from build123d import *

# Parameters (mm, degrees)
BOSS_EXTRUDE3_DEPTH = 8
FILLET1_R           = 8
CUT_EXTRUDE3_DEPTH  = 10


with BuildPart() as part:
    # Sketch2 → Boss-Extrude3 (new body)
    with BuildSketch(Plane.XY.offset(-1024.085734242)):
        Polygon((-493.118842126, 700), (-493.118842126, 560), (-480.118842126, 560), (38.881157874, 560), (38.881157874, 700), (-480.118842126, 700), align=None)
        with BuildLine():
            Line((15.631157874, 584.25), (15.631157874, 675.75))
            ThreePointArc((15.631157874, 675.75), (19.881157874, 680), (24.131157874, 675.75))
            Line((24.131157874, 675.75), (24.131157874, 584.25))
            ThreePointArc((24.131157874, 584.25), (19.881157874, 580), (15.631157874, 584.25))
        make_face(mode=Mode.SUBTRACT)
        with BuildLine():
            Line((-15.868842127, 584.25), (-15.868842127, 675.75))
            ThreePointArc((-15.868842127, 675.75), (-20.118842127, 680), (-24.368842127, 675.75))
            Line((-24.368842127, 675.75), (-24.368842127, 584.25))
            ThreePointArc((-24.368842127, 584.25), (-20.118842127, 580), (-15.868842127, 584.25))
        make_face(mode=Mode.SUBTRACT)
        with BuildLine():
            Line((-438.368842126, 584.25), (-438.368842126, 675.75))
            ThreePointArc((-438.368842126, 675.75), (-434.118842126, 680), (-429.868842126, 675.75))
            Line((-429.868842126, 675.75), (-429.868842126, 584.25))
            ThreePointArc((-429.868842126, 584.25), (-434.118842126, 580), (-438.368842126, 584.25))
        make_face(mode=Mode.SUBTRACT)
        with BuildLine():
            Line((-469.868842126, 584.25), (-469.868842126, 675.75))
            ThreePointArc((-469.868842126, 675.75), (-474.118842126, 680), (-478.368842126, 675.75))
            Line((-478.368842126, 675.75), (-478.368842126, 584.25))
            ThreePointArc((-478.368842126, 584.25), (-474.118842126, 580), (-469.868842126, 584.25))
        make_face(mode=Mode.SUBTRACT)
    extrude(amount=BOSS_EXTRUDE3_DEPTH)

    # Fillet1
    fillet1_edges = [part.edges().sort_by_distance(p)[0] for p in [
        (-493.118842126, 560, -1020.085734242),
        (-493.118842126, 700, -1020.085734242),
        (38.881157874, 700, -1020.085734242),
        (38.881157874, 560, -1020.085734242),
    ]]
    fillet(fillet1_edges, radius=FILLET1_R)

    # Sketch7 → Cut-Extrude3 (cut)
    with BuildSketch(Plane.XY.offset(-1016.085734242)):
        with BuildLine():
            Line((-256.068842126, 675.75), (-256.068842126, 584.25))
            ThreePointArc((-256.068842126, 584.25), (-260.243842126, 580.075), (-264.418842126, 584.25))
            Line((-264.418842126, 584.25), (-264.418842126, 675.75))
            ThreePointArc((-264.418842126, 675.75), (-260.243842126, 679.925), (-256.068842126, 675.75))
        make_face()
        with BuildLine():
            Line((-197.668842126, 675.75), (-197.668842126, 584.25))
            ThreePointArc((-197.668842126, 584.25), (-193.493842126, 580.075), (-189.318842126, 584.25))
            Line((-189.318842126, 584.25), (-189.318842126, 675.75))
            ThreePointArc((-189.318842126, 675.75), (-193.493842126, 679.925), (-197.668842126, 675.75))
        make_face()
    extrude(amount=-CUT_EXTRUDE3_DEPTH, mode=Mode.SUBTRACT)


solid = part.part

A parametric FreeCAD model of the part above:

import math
import FreeCAD as App
import Part
import Sketcher
from FreeCAD import Vector


def edges_at(feature, points):
    """Names of the edges that pass closest to the given points."""
    edges = feature.Shape.Edges
    near = lambda p: min(range(len(edges)), key=lambda i: edges[i].distToShape(Part.Vertex(*p))[0])
    return sorted({f"Edge{near(p) + 1}" for p in points})


def add_polygon(sketch, points):
    """Adds a closed chain of lines whose ends are joined by coincident constraints."""
    first, n = sketch.GeometryCount, len(points)
    for a, b in zip(points, points[1:] + points[:1]):
        sketch.addGeometry(Part.LineSegment(App.Vector(*a, 0), App.Vector(*b, 0)), False)
    for i in range(n):
        sketch.addConstraint(Sketcher.Constraint("Coincident", first + i, 2, first + (i + 1) % n, 1))

doc = App.newDocument("Part")
params = doc.addObject("Spreadsheet::Sheet", "Params")
for row, (alias, value) in enumerate([
    ("sketch1_width", "532 mm"),
    ("sketch1_height", "140 mm"),
    ("sketch1_radius", "4.25 mm"),
    ("sketch1_height2", "91.5 mm"),
    ("pad1_length", "8 mm"),
    ("fillet_radius", "8 mm"),
    ("sketch2_height", "91.5 mm"),
    ("pocket1_length", "10 mm"),
], start=1):
    params.set(f"A{row}", alias)
    params.set(f"B{row}", "=" + value)
    params.setAlias(f"B{row}", alias)

body = doc.addObject("PartDesign::Body", "Body")

# Sketch on XY plane
sketch1 = body.newObject("Sketcher::SketchObject", "Sketch")
sketch1.AttachmentSupport = (doc.getObject("XY_Plane"), [""])
sketch1.MapMode = "FlatFace"
sketch1.AttachmentOffset = App.Placement(Vector(0, 0, -1024.085734), App.Rotation())
add_polygon(sketch1, [(-493.1, 700), (-493.1, 560), (38.9, 560), (38.9, 700)])  # lines 0-3
sketch1.addGeometry(Part.LineSegment(Vector(-469.9, 675.8, 0), Vector(-469.9, 584.2, 0)), False)  # 4
sketch1.addGeometry(Part.ArcOfCircle(Part.Circle(Vector(-474.1, 584.2, 0), Vector(0, 0, 1), 4.2), math.radians(180), math.radians(360)), False)  # 5
sketch1.addGeometry(Part.LineSegment(Vector(-478.4, 584.2, 0), Vector(-478.4, 675.8, 0)), False)  # 6
sketch1.addGeometry(Part.ArcOfCircle(Part.Circle(Vector(-474.1, 675.8, 0), Vector(0, 0, 1), 4.2), math.radians(0), math.radians(180)), False)  # 7
sketch1.addGeometry(Part.ArcOfCircle(Part.Circle(Vector(-434.1, 584.2, 0), Vector(0, 0, 1), 4.2), math.radians(180), math.radians(360)), False)  # 8
sketch1.addGeometry(Part.LineSegment(Vector(-438.4, 584.2, 0), Vector(-438.4, 675.8, 0)), False)  # 9
sketch1.addGeometry(Part.ArcOfCircle(Part.Circle(Vector(-434.1, 675.8, 0), Vector(0, 0, 1), 4.2), math.radians(0), math.radians(180)), False)  # 10
sketch1.addGeometry(Part.LineSegment(Vector(-429.9, 675.8, 0), Vector(-429.9, 584.2, 0)), False)  # 11
sketch1.addGeometry(Part.LineSegment(Vector(-15.9, 675.8, 0), Vector(-15.9, 584.2, 0)), False)  # 12
sketch1.addGeometry(Part.ArcOfCircle(Part.Circle(Vector(-20.1, 584.2, 0), Vector(0, 0, 1), 4.2), math.radians(180), math.radians(360)), False)  # 13
sketch1.addGeometry(Part.LineSegment(Vector(-24.4, 584.2, 0), Vector(-24.4, 675.8, 0)), False)  # 14
sketch1.addGeometry(Part.ArcOfCircle(Part.Circle(Vector(-20.1, 675.8, 0), Vector(0, 0, 1), 4.2), math.radians(0), math.radians(180)), False)  # 15
sketch1.addGeometry(Part.ArcOfCircle(Part.Circle(Vector(19.9, 584.2, 0), Vector(0, 0, 1), 4.2), math.radians(180), math.radians(360)), False)  # 16
sketch1.addGeometry(Part.LineSegment(Vector(15.6, 584.2, 0), Vector(15.6, 675.8, 0)), False)  # 17
sketch1.addGeometry(Part.ArcOfCircle(Part.Circle(Vector(19.9, 675.8, 0), Vector(0, 0, 1), 4.2), math.radians(0), math.radians(180)), False)  # 18
sketch1.addGeometry(Part.LineSegment(Vector(24.1, 675.8, 0), Vector(24.1, 584.2, 0)), False)  # 19
sketch1.addConstraint([
    Sketcher.Constraint("Tangent", 4, 2, 5, 2),
    Sketcher.Constraint("Tangent", 5, 1, 6, 1),
    Sketcher.Constraint("Tangent", 6, 2, 7, 2),
    Sketcher.Constraint("Tangent", 7, 1, 4, 1),
    Sketcher.Constraint("Tangent", 8, 1, 9, 1),
    Sketcher.Constraint("Tangent", 9, 2, 10, 2),
    Sketcher.Constraint("Tangent", 10, 1, 11, 1),
    Sketcher.Constraint("Tangent", 11, 2, 8, 2),
    Sketcher.Constraint("Tangent", 12, 2, 13, 2),
    Sketcher.Constraint("Tangent", 13, 1, 14, 1),
    Sketcher.Constraint("Tangent", 14, 2, 15, 2),
    Sketcher.Constraint("Tangent", 15, 1, 12, 1),
    Sketcher.Constraint("Tangent", 16, 1, 17, 1),
    Sketcher.Constraint("Tangent", 17, 2, 18, 2),
    Sketcher.Constraint("Tangent", 18, 1, 19, 1),
    Sketcher.Constraint("Tangent", 19, 2, 16, 2),
    Sketcher.Constraint("Vertical", 0),
    Sketcher.Constraint("Horizontal", 1),
    Sketcher.Constraint("Vertical", 2),
    Sketcher.Constraint("Horizontal", 3),
    Sketcher.Constraint("Vertical", 4),
    Sketcher.Constraint("Vertical", 6),
    Sketcher.Constraint("Vertical", 9),
    Sketcher.Constraint("Vertical", 11),
    Sketcher.Constraint("Vertical", 12),
    Sketcher.Constraint("Vertical", 14),
    Sketcher.Constraint("Vertical", 17),
    Sketcher.Constraint("Vertical", 19),
    Sketcher.Constraint("Equal", 7, 8),
    Sketcher.Constraint("Equal", 10, 13),
    Sketcher.Constraint("Equal", 15, 16),
    Sketcher.Constraint("Horizontal", 5, 3, 8, 3),
    Sketcher.Constraint("Horizontal", 7, 3, 10, 3),
    Sketcher.Constraint("Horizontal", 8, 3, 13, 3),
    Sketcher.Constraint("Horizontal", 10, 3, 15, 3),
    Sketcher.Constraint("Horizontal", 13, 3, 16, 3),
    Sketcher.Constraint("Horizontal", 15, 3, 18, 3),
    Sketcher.Constraint("DistanceX", 1, 1, 1, 2, 532.0),
    Sketcher.Constraint("DistanceY", 0, 2, 0, 1, 140.0),
    Sketcher.Constraint("Radius", 5, 4.25),
    Sketcher.Constraint("DistanceY", 4, 2, 4, 1, 91.5),
    Sketcher.Constraint("DistanceY", -1, 1, 0, 2, 560.0),
    Sketcher.Constraint("DistanceX", 5, 3, 8, 3, 40.0),
    Sketcher.Constraint("DistanceX", 8, 3, 13, 3, 414.0),
    Sketcher.Constraint("DistanceX", 13, 3, 16, 3, 40.0),
    Sketcher.Constraint("DistanceX", 0, 2, 5, 3, 19.0),
    Sketcher.Constraint("DistanceY", -1, 1, 5, 3, 584.25),
    Sketcher.Constraint("DistanceX", 5, 3, -1, 1, 474.118842),
])
sketch1.setExpression("Constraints[41]", "Params.sketch1_width")
sketch1.setExpression("Constraints[42]", "Params.sketch1_height")
sketch1.setExpression("Constraints[43]", "Params.sketch1_radius")
sketch1.setExpression("Constraints[44]", "Params.sketch1_height2")
pad1 = body.newObject("PartDesign::Pad", "Pad")
pad1.Profile = sketch1
pad1.setExpression("Length", "Params.pad1_length")
doc.recompute()

fillet = body.newObject("PartDesign::Fillet", "Fillet")
fillet.Base = (pad1, edges_at(pad1, [
    (-493.119, 560, -1020.086),
    (-493.119, 700, -1020.086),
    (38.881, 700, -1020.086),
    (38.881, 560, -1020.086),
]))
fillet.setExpression("Radius", "Params.fillet_radius")

# Sketch on XY plane
sketch2 = body.newObject("Sketcher::SketchObject", "Sketch001")
sketch2.AttachmentSupport = (doc.getObject("XY_Plane"), [""])
sketch2.MapMode = "FlatFace"
sketch2.AttachmentOffset = App.Placement(Vector(0, 0, -1016.085734), App.Rotation())
sketch2.addGeometry([
    Part.LineSegment(Vector(-256.1, 584.2, 0), Vector(-256.1, 675.8, 0)),  # 0
    Part.ArcOfCircle(Part.Circle(Vector(-260.2, 675.8, 0), Vector(0, 0, 1), 4.2), math.radians(0), math.radians(180)),  # 1
    Part.LineSegment(Vector(-264.4, 675.8, 0), Vector(-264.4, 584.2, 0)),  # 2
    Part.ArcOfCircle(Part.Circle(Vector(-260.2, 584.2, 0), Vector(0, 0, 1), 4.2), math.radians(180), math.radians(360)),  # 3
    Part.LineSegment(Vector(-197.7, 675.8, 0), Vector(-197.7, 584.2, 0)),  # 4
    Part.ArcOfCircle(Part.Circle(Vector(-193.5, 584.2, 0), Vector(0, 0, 1), 4.2), math.radians(180), math.radians(360)),  # 5
    Part.LineSegment(Vector(-189.3, 584.2, 0), Vector(-189.3, 675.8, 0)),  # 6
    Part.ArcOfCircle(Part.Circle(Vector(-193.5, 675.8, 0), Vector(0, 0, 1), 4.2), math.radians(0), math.radians(180)),  # 7
], False)
sketch2.addConstraint([
    Sketcher.Constraint("Tangent", 0, 2, 1, 1),
    Sketcher.Constraint("Tangent", 1, 2, 2, 1),
    Sketcher.Constraint("Tangent", 2, 2, 3, 1),
    Sketcher.Constraint("Tangent", 3, 2, 0, 1),
    Sketcher.Constraint("Tangent", 4, 2, 5, 1),
    Sketcher.Constraint("Tangent", 5, 2, 6, 1),
    Sketcher.Constraint("Tangent", 6, 2, 7, 1),
    Sketcher.Constraint("Tangent", 7, 2, 4, 1),
    Sketcher.Constraint("Vertical", 0),
    Sketcher.Constraint("Vertical", 2),
    Sketcher.Constraint("Vertical", 4),
    Sketcher.Constraint("Vertical", 6),
    Sketcher.Constraint("Equal", 3, 5),
    Sketcher.Constraint("Horizontal", 3, 3, 5, 3),
    Sketcher.Constraint("Horizontal", 1, 3, 7, 3),
    Sketcher.Constraint("DistanceY", 0, 1, 0, 2, 91.5),
    Sketcher.Constraint("Radius", 1, 4.175),
    Sketcher.Constraint("DistanceX", 3, 2, 4, 2, 58.4),
    Sketcher.Constraint("DistanceY", -1, 1, 1, 3, 675.75),
    Sketcher.Constraint("DistanceX", 1, 3, -1, 1, 260.243842),
])
sketch2.setExpression("Constraints[15]", "Params.sketch2_height")
pocket1 = body.newObject("PartDesign::Pocket", "Pocket")
pocket1.Profile = sketch2
pocket1.setExpression("Length", "Params.pocket1_length")

doc.recompute()
